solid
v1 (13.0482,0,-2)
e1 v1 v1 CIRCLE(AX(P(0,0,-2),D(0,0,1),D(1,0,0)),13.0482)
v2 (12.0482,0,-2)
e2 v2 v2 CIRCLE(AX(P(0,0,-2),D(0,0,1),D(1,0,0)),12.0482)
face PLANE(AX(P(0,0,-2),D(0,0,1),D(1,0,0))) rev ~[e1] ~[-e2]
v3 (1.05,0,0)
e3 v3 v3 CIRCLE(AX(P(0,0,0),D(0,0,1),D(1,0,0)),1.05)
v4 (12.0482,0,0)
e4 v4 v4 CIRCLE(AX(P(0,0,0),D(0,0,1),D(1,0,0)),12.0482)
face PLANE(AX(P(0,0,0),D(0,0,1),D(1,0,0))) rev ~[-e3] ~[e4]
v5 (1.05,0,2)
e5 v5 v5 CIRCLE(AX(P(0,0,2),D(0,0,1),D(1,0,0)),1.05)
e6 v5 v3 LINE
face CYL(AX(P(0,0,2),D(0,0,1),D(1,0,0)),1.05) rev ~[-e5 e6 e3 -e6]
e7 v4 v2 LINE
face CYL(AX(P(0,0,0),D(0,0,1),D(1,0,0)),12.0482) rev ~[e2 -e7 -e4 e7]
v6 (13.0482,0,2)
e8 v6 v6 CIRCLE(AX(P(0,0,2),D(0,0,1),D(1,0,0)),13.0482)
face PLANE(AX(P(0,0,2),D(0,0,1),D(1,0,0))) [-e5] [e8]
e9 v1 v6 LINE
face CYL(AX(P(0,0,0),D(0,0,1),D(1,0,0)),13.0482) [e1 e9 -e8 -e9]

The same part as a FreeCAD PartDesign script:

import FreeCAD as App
import Part
import Sketcher
from FreeCAD import Vector

doc = App.newDocument("Part")
body = doc.addObject("PartDesign::Body", "Body")

# Sketch on XY plane
sketch1 = body.newObject("Sketcher::SketchObject", "Sketch")
sketch1.AttachmentSupport = (doc.getObject("XY_Plane"), [""])
sketch1.MapMode = "FlatFace"
sketch1.addGeometry([
    Part.Circle(Vector(0, 0, 0), Vector(0, 0, 1), 13.0482),
    Part.Circle(Vector(0, 0, 0), Vector(0, 0, 1), 12.0482),
], False)
sketch1.addConstraint([
    Sketcher.Constraint("Coincident", 0, 3, -1, 1),
    Sketcher.Constraint("Coincident", 1, 3, -1, 1),
    Sketcher.Constraint("Diameter", 0, 26.0964),
    Sketcher.Constraint("Diameter", 1, 24.0964),
])
pad1 = body.newObject("PartDesign::Pad", "Pad")
pad1.Profile = sketch1
pad1.Length = 2
pad1.Reversed = True

# Sketch on XY plane
sketch2 = body.newObject("Sketcher::SketchObject", "Sketch001")
sketch2.AttachmentSupport = (doc.getObject("XY_Plane"), [""])
sketch2.MapMode = "FlatFace"
sketch2.addGeometry(Part.Circle(Vector(0, 0, 0), Vector(0, 0, 1), 13.0482), False)
sketch2.addConstraint([
    Sketcher.Constraint("Coincident", 0, 3, -1, 1),
    Sketcher.Constraint("Diameter", 0, 26.0964),
])
pad2 = body.newObject("PartDesign::Pad", "Pad001")
pad2.Profile = sketch2
pad2.Length = 2

# Sketch on XY plane
sketch3 = body.newObject("Sketcher::SketchObject", "Sketch002")
sketch3.AttachmentSupport = (doc.getObject("XY_Plane"), [""])
sketch3.MapMode = "FlatFace"
sketch3.AttachmentOffset = App.Placement(Vector(0, 0, 2), App.Rotation())
sketch3.addGeometry(Part.Circle(Vector(0, 0, 0), Vector(0, 0, 1), 1.05), False)
sketch3.addConstraint([
    Sketcher.Constraint("Coincident", 0, 3, -1, 1),
    Sketcher.Constraint("Diameter", 0, 2.1),
])
pocket1 = body.newObject("PartDesign::Pocket", "Pocket")
pocket1.Profile = sketch3
pocket1.Type = "ThroughAll"

doc.recompute()
